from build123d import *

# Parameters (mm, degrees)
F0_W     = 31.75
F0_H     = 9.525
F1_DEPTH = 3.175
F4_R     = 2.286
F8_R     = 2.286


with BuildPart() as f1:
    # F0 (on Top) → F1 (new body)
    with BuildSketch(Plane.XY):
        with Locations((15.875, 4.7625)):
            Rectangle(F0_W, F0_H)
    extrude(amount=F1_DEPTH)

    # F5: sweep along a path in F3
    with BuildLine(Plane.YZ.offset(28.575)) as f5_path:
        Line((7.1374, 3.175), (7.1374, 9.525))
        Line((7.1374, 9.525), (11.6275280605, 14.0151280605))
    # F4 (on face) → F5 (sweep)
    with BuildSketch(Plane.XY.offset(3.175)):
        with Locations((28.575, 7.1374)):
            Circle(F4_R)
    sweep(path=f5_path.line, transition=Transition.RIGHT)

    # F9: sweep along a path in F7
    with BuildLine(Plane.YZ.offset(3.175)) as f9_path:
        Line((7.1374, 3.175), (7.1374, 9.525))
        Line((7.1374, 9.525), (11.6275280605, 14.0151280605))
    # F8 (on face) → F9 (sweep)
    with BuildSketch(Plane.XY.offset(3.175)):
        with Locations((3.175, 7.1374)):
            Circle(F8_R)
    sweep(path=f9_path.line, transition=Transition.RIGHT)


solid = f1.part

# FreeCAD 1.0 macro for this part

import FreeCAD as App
import Part
import Sketcher

V = App.Vector
Q = App.Units.Quantity

doc = App.newDocument("Part")
body = doc.addObject("PartDesign::Body", "Body")

# Sketch on XY plane
sketch1 = body.newObject("Sketcher::SketchObject", "Sketch")
sketch1.AttachmentSupport = (doc.getObject("XY_Plane"), [""])
sketch1.MapMode = "FlatFace"
sketch1.addGeometry([
    Part.LineSegment(V(0, 10, 0), V(0, 0, 0)),
    Part.LineSegment(V(0, 0, 0), V(32, 0, 0)),
    Part.LineSegment(V(32, 0, 0), V(32, 10, 0)),
    Part.LineSegment(V(32, 10, 0), V(0, 10, 0)),
], False)
sketch1.addConstraint([
    Sketcher.Constraint("Coincident", 0, 2, 1, 1),
    Sketcher.Constraint("Coincident", 1, 2, 2, 1),
    Sketcher.Constraint("Coincident", 2, 2, 3, 1),
    Sketcher.Constraint("Coincident", 3, 2, 0, 1),
    Sketcher.Constraint("Vertical", 0),
    Sketcher.Constraint("Horizontal", 1),
    Sketcher.Constraint("Vertical", 2),
    Sketcher.Constraint("Horizontal", 3),
    Sketcher.Constraint("Coincident", 0, 2, -1, 1),
    Sketcher.Constraint("DistanceX", 1, 1, 1, 2, Q("1.25 in")),
    Sketcher.Constraint("DistanceY", 0, 2, 0, 1, Q("0.375 in")),
])
pad1 = body.newObject("PartDesign::Pad", "Pad")
pad1.Profile = sketch1
pad1.Length = Q("0.125 in")

# Sketch on XY plane
sketch2 = body.newObject("Sketcher::SketchObject", "Sketch001")
sketch2.AttachmentSupport = (doc.getObject("XY_Plane"), [""])
sketch2.MapMode = "FlatFace"
sketch2.AttachmentOffset = App.Placement(V(0, 0, 0.125 * 25.4), App.Rotation())
sketch2.addGeometry(Part.Circle(V(28.6, 7.1, 0), V(0, 0, 1), 2.3), False)
sketch2.addConstraint([
    Sketcher.Constraint("Diameter", 0, Q("0.18 in")),
    Sketcher.Constraint("DistanceX", -1, 1, 0, 3, Q("1.125 in")),
    Sketcher.Constraint("DistanceY", -1, 1, 0, 3, Q("0.281 in")),
])

# Sketch on YZ plane
sketch3 = body.newObject("Sketcher::SketchObject", "Sketch002")
sketch3.AttachmentSupport = (doc.getObject("YZ_Plane"), [""])
sketch3.MapMode = "FlatFace"
sketch3.AttachmentOffset = App.Placement(V(0, 0, 1.125 * 25.4), App.Rotation())
sketch3.addGeometry([
    Part.LineSegment(V(7, 3, 0), V(7, 10, 0)),
    Part.LineSegment(V(7, 10, 0), V(12, 14, 0)),
], False)
sketch3.addConstraint([
    Sketcher.Constraint("Coincident", 0, 2, 1, 1),
    Sketcher.Constraint("Vertical", 0),
    Sketcher.Constraint("Angle", 1, Q("45 deg")),
    Sketcher.Constraint("DistanceY", 0, 1, 0, 2, Q("0.25 in")),
    Sketcher.Constraint("Distance", 1, Q("0.25 in")),
    Sketcher.Constraint("DistanceX", -1, 1, 0, 1, Q("0.281 in")),
    Sketcher.Constraint("DistanceY", -1, 1, 0, 1, Q("0.125 in")),
])
doc.recompute()

additivepipe = body.newObject("PartDesign::AdditivePipe", "AdditivePipe")
additivepipe.Profile = sketch2
additivepipe.Spine = (sketch3, ["Edge1", "Edge2"])
additivepipe.Transition = "Right corner"

# Sketch on XY plane
sketch4 = body.newObject("Sketcher::SketchObject", "Sketch003")
sketch4.AttachmentSupport = (doc.getObject("XY_Plane"), [""])
sketch4.MapMode = "FlatFace"
sketch4.AttachmentOffset = App.Placement(V(0, 0, 0.125 * 25.4), App.Rotation())
sketch4.addGeometry(Part.Circle(V(3.2, 7.1, 0), V(0, 0, 1), 2.3), False)
sketch4.addConstraint([
    Sketcher.Constraint("Diameter", 0, Q("0.18 in")),
    Sketcher.Constraint("DistanceX", -1, 1, 0, 3, Q("0.125 in")),
    Sketcher.Constraint("DistanceY", -1, 1, 0, 3, Q("0.281 in")),
])

# Sketch on YZ plane
sketch5 = body.newObject("Sketcher::SketchObject", "Sketch004")
sketch5.AttachmentSupport = (doc.getObject("YZ_Plane"), [""])
sketch5.MapMode = "FlatFace"
sketch5.AttachmentOffset = App.Placement(V(0, 0, 0.125 * 25.4), App.Rotation())
sketch5.addGeometry([
    Part.LineSegment(V(7, 3, 0), V(7, 10, 0)),
    Part.LineSegment(V(7, 10, 0), V(12, 14, 0)),
], False)
sketch5.addConstraint([
    Sketcher.Constraint("Coincident", 0, 2, 1, 1),
    Sketcher.Constraint("Vertical", 0),
    Sketcher.Constraint("Angle", 1, Q("45 deg")),
    Sketcher.Constraint("DistanceY", 0, 1, 0, 2, Q("0.25 in")),
    Sketcher.Constraint("Distance", 1, Q("0.25 in")),
    Sketcher.Constraint("DistanceX", -1, 1, 0, 1, Q("0.281 in")),
    Sketcher.Constraint("DistanceY", -1, 1, 0, 1, Q("0.125 in")),
])
doc.recompute()

additivepipe2 = body.newObject("PartDesign::AdditivePipe", "AdditivePipe001")
additivepipe2.Profile = sketch4
additivepipe2.Spine = (sketch5, ["Edge1", "Edge2"])
additivepipe2.Transition = "Right corner"

doc.recompute()
